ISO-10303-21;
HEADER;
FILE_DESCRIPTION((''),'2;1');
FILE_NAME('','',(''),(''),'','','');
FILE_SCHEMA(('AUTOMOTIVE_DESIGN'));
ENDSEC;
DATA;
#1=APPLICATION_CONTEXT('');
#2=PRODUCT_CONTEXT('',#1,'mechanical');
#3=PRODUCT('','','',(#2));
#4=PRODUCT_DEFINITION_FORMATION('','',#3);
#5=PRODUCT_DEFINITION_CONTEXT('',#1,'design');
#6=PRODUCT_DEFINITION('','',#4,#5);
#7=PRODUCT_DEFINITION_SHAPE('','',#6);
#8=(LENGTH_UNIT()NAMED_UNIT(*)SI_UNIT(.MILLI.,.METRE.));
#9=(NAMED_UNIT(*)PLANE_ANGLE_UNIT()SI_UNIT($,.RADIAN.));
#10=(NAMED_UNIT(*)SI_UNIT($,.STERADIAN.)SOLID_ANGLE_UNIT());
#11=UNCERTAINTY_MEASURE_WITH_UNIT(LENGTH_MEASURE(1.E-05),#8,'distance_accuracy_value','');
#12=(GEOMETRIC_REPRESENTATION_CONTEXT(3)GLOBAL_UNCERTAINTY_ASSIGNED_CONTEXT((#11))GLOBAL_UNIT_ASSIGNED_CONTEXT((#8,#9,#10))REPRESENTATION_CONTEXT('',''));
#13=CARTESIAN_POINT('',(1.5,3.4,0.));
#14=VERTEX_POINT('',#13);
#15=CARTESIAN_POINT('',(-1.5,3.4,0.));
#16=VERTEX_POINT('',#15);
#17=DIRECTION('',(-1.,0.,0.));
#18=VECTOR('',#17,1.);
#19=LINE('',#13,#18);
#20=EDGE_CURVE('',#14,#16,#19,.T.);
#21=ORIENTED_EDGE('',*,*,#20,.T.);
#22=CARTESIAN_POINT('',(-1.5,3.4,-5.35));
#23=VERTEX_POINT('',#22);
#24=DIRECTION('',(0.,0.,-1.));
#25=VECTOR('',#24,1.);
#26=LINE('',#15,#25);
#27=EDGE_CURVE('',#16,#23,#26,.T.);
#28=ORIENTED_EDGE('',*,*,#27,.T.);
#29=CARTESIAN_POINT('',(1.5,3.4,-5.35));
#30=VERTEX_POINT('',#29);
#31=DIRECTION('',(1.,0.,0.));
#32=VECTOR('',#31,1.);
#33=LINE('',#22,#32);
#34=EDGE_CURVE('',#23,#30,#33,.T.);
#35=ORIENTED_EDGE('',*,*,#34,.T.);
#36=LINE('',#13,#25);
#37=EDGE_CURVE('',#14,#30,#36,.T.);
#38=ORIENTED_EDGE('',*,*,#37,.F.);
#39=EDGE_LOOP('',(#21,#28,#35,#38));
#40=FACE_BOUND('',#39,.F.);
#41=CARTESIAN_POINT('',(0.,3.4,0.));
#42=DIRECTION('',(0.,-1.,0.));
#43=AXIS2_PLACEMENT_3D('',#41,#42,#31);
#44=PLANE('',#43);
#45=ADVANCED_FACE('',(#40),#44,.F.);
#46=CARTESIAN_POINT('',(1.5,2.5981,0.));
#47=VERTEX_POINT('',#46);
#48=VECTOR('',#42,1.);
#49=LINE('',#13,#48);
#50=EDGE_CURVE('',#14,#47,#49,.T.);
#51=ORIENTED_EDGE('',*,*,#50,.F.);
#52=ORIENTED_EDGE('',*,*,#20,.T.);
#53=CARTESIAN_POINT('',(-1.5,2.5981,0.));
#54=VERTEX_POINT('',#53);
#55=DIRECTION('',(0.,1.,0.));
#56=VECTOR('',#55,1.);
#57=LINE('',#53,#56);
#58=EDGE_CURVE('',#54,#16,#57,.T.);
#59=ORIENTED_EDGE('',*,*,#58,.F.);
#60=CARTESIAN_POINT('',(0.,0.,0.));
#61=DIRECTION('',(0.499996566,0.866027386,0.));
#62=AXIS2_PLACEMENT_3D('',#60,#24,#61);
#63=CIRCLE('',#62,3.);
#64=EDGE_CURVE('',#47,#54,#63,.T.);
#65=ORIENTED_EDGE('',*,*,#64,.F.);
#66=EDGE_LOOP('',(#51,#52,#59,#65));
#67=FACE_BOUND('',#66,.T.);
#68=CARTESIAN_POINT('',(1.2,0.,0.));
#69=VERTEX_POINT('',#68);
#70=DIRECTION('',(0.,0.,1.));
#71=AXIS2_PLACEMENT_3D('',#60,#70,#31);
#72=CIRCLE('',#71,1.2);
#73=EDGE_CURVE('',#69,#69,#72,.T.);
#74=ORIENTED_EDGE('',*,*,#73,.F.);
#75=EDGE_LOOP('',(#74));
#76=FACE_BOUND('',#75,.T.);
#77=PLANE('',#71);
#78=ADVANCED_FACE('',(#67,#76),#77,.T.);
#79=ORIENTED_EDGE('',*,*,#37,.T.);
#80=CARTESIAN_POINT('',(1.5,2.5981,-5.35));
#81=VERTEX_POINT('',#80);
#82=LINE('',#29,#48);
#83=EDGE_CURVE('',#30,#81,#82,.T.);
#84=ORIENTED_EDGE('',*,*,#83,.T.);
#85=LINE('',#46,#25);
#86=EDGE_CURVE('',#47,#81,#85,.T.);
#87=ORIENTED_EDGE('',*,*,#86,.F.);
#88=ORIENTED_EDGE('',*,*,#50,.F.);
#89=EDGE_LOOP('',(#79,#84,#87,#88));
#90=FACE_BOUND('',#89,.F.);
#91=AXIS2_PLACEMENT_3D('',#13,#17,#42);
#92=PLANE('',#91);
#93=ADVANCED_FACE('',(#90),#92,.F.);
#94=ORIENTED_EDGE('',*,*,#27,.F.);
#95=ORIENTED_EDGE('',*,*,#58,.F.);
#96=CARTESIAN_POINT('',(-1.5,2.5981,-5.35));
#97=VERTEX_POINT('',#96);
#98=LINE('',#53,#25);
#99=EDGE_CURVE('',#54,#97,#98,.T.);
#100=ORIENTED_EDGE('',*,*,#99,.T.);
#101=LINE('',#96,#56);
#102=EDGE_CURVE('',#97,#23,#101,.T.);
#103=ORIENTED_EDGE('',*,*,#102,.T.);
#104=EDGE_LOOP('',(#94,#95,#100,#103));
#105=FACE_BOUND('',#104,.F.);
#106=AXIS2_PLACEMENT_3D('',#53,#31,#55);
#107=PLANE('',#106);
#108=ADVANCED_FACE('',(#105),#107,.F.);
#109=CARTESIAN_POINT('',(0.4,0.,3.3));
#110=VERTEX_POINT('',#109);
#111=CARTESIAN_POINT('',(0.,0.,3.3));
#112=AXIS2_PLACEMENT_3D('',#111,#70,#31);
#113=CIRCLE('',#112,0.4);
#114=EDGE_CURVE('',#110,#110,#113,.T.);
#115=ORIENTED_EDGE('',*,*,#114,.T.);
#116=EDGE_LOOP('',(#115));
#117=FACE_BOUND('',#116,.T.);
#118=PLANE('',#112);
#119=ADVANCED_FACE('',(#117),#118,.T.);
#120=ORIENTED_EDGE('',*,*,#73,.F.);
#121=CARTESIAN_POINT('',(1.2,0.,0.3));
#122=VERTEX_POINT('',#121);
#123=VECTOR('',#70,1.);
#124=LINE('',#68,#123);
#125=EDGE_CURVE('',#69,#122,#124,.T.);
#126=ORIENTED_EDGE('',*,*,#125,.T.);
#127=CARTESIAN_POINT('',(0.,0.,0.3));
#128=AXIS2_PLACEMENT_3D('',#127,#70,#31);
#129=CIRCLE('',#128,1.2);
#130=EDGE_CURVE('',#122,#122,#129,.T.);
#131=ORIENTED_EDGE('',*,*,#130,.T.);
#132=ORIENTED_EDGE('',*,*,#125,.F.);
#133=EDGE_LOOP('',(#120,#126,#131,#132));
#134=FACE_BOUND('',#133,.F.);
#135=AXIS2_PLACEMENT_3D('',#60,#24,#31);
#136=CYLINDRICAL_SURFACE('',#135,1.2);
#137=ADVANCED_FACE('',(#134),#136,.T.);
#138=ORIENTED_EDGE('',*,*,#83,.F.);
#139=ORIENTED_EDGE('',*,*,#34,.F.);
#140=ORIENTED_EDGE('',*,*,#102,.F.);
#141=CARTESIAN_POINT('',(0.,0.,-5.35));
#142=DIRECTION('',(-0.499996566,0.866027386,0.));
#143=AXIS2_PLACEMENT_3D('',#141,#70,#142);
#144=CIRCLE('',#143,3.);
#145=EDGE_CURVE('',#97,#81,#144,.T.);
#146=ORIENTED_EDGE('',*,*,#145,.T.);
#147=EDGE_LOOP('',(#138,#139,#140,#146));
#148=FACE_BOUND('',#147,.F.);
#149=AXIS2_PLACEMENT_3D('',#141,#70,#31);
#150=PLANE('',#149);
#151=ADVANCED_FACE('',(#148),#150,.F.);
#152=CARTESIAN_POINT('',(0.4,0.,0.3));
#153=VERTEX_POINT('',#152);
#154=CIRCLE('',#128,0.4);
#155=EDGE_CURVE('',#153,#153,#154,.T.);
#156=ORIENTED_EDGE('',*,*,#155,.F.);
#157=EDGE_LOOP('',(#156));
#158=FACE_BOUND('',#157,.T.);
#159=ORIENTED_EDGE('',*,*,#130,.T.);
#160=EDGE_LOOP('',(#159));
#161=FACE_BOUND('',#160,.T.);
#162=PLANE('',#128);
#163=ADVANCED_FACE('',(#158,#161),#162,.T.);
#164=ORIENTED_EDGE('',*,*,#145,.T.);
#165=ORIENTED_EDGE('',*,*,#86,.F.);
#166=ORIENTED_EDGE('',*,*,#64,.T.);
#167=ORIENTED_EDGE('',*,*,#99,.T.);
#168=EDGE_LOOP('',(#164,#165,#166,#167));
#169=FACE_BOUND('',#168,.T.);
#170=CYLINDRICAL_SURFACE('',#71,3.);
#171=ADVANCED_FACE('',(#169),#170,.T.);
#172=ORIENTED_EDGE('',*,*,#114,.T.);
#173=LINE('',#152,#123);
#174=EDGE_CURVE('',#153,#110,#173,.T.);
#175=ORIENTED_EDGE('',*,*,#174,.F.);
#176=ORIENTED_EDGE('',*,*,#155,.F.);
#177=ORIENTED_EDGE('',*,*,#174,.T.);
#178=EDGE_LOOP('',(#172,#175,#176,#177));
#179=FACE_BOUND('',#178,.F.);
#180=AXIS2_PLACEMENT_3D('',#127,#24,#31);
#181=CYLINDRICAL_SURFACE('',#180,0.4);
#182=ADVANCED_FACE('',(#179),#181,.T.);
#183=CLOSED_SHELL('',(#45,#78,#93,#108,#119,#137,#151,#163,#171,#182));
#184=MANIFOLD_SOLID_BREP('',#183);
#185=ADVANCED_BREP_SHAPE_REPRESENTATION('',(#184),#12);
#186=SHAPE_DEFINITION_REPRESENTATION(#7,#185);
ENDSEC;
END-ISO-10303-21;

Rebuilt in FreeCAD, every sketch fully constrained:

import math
import FreeCAD as App
import Part
import Sketcher

doc = App.newDocument("Part")
body = doc.addObject("PartDesign::Body", "Body")

sketch1 = body.newObject("Sketcher::SketchObject", "Sketch")
sketch1.AttachmentSupport = (doc.getObject("XY_Plane"), [""])
sketch1.MapMode = "FlatFace"
sketch1.addGeometry([
    Part.LineSegment(App.Vector(1.5, 2.6, 0), App.Vector(1.5, 3.4, 0)),
    Part.LineSegment(App.Vector(1.5, 3.4, 0), App.Vector(-1.5, 3.4, 0)),
    Part.LineSegment(App.Vector(-1.5, 3.4, 0), App.Vector(-1.5, 2.6, 0)),
    Part.ArcOfCircle(Part.Circle(App.Vector(0, 0, 0), App.Vector(0, 0, 1), 3), math.radians(120), math.radians(420)),
], False)
sketch1.addConstraint([
    Sketcher.Constraint("Coincident", 0, 2, 1, 1),
    Sketcher.Constraint("Coincident", 1, 2, 2, 1),
    Sketcher.Constraint("Coincident", 2, 2, 3, 1),
    Sketcher.Constraint("Coincident", 3, 2, 0, 1),
    Sketcher.Constraint("Vertical", 0),
    Sketcher.Constraint("Horizontal", 1),
    Sketcher.Constraint("Vertical", 2),
    Sketcher.Constraint("Coincident", 3, 3, -1, 1),
    Sketcher.Constraint("Horizontal", 2, 2, 3, 2),
    Sketcher.Constraint("Radius", 3, 3.0),
    Sketcher.Constraint("DistanceX", 1, 2, 1, 1, 3.0),
    Sketcher.Constraint("DistanceY", -1, 1, 0, 2, 3.4),
])
pad1 = body.newObject("PartDesign::Pad", "Pad")
pad1.Profile = sketch1
pad1.Length = 5.35
pad1.Reversed = True

sketch2 = body.newObject("Sketcher::SketchObject", "Sketch001")
sketch2.AttachmentSupport = (doc.getObject("XY_Plane"), [""])
sketch2.MapMode = "FlatFace"
sketch2.addGeometry(Part.Circle(App.Vector(0, 0, 0), App.Vector(0, 0, 1), 1.2), False)
sketch2.addConstraint([
    Sketcher.Constraint("Coincident", 0, 3, -1, 1),
    Sketcher.Constraint("Diameter", 0, 2.4),
])
pad2 = body.newObject("PartDesign::Pad", "Pad001")
pad2.Profile = sketch2
pad2.Length = 0.3

sketch3 = body.newObject("Sketcher::SketchObject", "Sketch002")
sketch3.AttachmentSupport = (doc.getObject("XY_Plane"), [""])
sketch3.MapMode = "FlatFace"
sketch3.AttachmentOffset = App.Placement(App.Vector(0, 0, 0.3), App.Rotation())
sketch3.addGeometry(Part.Circle(App.Vector(0, 0, 0), App.Vector(0, 0, 1), 0.4), False)
sketch3.addConstraint([
    Sketcher.Constraint("Coincident", 0, 3, -1, 1),
    Sketcher.Constraint("Diameter", 0, 0.8),
])
pad3 = body.newObject("PartDesign::Pad", "Pad002")
pad3.Profile = sketch3
pad3.Length = 3

doc.recompute()
